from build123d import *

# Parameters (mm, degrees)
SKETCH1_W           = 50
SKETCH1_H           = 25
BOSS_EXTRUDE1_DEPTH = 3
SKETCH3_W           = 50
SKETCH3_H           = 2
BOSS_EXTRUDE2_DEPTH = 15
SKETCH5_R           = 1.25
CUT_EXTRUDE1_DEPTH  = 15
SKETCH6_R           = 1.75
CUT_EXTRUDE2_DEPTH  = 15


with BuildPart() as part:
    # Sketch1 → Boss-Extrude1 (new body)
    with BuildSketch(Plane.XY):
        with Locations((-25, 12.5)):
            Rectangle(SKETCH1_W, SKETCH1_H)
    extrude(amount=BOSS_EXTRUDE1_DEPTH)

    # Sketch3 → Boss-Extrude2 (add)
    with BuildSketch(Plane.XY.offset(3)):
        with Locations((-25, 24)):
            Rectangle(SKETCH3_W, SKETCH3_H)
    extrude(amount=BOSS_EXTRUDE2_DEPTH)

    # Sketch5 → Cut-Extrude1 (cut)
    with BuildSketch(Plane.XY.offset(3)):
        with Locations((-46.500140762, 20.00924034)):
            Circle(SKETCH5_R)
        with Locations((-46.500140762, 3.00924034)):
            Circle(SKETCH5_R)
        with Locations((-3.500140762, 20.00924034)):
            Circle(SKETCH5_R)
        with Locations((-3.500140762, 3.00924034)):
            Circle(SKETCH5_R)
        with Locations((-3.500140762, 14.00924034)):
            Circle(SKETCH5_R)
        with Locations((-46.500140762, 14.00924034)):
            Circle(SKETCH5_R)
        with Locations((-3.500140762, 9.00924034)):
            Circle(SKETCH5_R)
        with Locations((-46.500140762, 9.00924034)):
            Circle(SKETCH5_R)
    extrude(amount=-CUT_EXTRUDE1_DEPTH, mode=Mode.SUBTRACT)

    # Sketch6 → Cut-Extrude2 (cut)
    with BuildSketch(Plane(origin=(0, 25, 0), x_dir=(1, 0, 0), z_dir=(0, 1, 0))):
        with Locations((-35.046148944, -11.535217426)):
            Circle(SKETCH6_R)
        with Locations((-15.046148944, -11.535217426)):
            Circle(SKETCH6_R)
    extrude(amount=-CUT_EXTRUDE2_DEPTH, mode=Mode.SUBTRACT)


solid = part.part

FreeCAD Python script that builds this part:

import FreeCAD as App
import Part
import Sketcher


def add_polygon(sketch, points):
    """Adds a closed chain of lines whose ends are joined by coincident constraints."""
    first, n = sketch.GeometryCount, len(points)
    for a, b in zip(points, points[1:] + points[:1]):
        sketch.addGeometry(Part.LineSegment(App.Vector(*a, 0), App.Vector(*b, 0)), False)
    for i in range(n):
        sketch.addConstraint(Sketcher.Constraint("Coincident", first + i, 2, first + (i + 1) % n, 1))

doc = App.newDocument("Part")
body = doc.addObject("PartDesign::Body", "Body")

# Sketch on XY plane
sketch1 = doc.addObject("Sketcher::SketchObject", "Sketch")
body.addObject(sketch1)
sketch1.AttachmentSupport = (doc.XY_Plane, [""])
sketch1.MapMode = "FlatFace"
add_polygon(sketch1, [(-50, 25), (-50, 0), (0, 0), (0, 25)])  # lines 0-3
sketch1.addConstraint([
    Sketcher.Constraint("Vertical", 0),
    Sketcher.Constraint("Horizontal", 1),
    Sketcher.Constraint("Vertical", 2),
    Sketcher.Constraint("Horizontal", 3),
    Sketcher.Constraint("Coincident", 1, 2, -1, 1),
    Sketcher.Constraint("DistanceX", 1, 1, 1, 2, 50.0),
    Sketcher.Constraint("DistanceY", 0, 2, 0, 1, 25.0),
])
pad1 = doc.addObject("PartDesign::Pad", "Pad")
body.addObject(pad1)
pad1.Profile = sketch1
pad1.Length = 3

# Sketch on XY plane
sketch2 = doc.addObject("Sketcher::SketchObject", "Sketch001")
body.addObject(sketch2)
sketch2.AttachmentSupport = (doc.XY_Plane, [""])
sketch2.MapMode = "FlatFace"
sketch2.AttachmentOffset = App.Placement(App.Vector(0, 0, 3), App.Rotation())
add_polygon(sketch2, [(-50, 25), (-50, 23), (0, 23), (0, 25)])  # lines 0-3
sketch2.addConstraint([
    Sketcher.Constraint("Vertical", 0),
    Sketcher.Constraint("Horizontal", 1),
    Sketcher.Constraint("Vertical", 2),
    Sketcher.Constraint("Horizontal", 3),
    Sketcher.Constraint("PointOnObject", 1, 2, -2),
    Sketcher.Constraint("DistanceX", 1, 1, 1, 2, 50.0),
    Sketcher.Constraint("DistanceY", 0, 2, 0, 1, 2.0),
    Sketcher.Constraint("DistanceY", -1, 1, 0, 2, 23.0),
])
pad2 = doc.addObject("PartDesign::Pad", "Pad001")
body.addObject(pad2)
pad2.Profile = sketch2
pad2.Length = 15

# Sketch on XY plane
sketch3 = doc.addObject("Sketcher::SketchObject", "Sketch002")
body.addObject(sketch3)
sketch3.AttachmentSupport = (doc.XY_Plane, [""])
sketch3.MapMode = "FlatFace"
sketch3.AttachmentOffset = App.Placement(App.Vector(0, 0, 3), App.Rotation())
sketch3.addGeometry([
    Part.Circle(App.Vector(-46.5, 20, 0), App.Vector(0, 0, 1), 1.2),  # 0
    Part.Circle(App.Vector(-46.5, 3, 0), App.Vector(0, 0, 1), 1.2),  # 1
    Part.Circle(App.Vector(-3.5, 20, 0), App.Vector(0, 0, 1), 1.2),  # 2
    Part.Circle(App.Vector(-3.5, 3, 0), App.Vector(0, 0, 1), 1.2),  # 3
    Part.Circle(App.Vector(-3.5, 14, 0), App.Vector(0, 0, 1), 1.2),  # 4
    Part.Circle(App.Vector(-46.5, 14, 0), App.Vector(0, 0, 1), 1.2),  # 5
    Part.Circle(App.Vector(-3.5, 9, 0), App.Vector(0, 0, 1), 1.2),  # 6
    Part.Circle(App.Vector(-46.5, 9, 0), App.Vector(0, 0, 1), 1.2),  # 7
], False)
sketch3.addConstraint([
    Sketcher.Constraint("Equal", 0, 1),
    Sketcher.Constraint("Equal", 1, 2),
    Sketcher.Constraint("Equal", 2, 3),
    Sketcher.Constraint("Equal", 3, 4),
    Sketcher.Constraint("Equal", 4, 5),
    Sketcher.Constraint("Equal", 5, 6),
    Sketcher.Constraint("Equal", 6, 7),
    Sketcher.Constraint("Horizontal", 0, 3, 2, 3),
    Sketcher.Constraint("Horizontal", 1, 3, 3, 3),
    Sketcher.Constraint("Horizontal", 4, 3, 5, 3),
    Sketcher.Constraint("Horizontal", 6, 3, 7, 3),
    Sketcher.Constraint("Vertical", 0, 3, 1, 3),
    Sketcher.Constraint("Vertical", 2, 3, 3, 3),
    Sketcher.Constraint("Vertical", 3, 3, 4, 3),
    Sketcher.Constraint("Vertical", 1, 3, 5, 3),
    Sketcher.Constraint("Vertical", 4, 3, 6, 3),
    Sketcher.Constraint("Vertical", 5, 3, 7, 3),
    Sketcher.Constraint("Diameter", 0, 2.5),
    Sketcher.Constraint("DistanceY", 1, 3, 0, 3, 17.0),
    Sketcher.Constraint("DistanceX", 0, 3, 2, 3, 43.0),
    Sketcher.Constraint("DistanceY", 4, 3, 2, 3, 6.0),
    Sketcher.Constraint("DistanceY", 6, 3, 4, 3, 5.0),
    Sketcher.Constraint("DistanceX", 0, 3, -1, 1, 46.500141),
    Sketcher.Constraint("DistanceY", -1, 1, 0, 3, 20.00924),
])
pocket1 = doc.addObject("PartDesign::Pocket", "Pocket")
body.addObject(pocket1)
pocket1.Profile = sketch3
pocket1.Length = 15

# Sketch on XZ plane
sketch4 = doc.addObject("Sketcher::SketchObject", "Sketch003")
body.addObject(sketch4)
sketch4.AttachmentSupport = (doc.XZ_Plane, [""])
sketch4.MapMode = "FlatFace"
sketch4.AttachmentOffset = App.Placement(App.Vector(0, 0, -25), App.Rotation())
sketch4.addGeometry([
    Part.Circle(App.Vector(-35, 11.5, 0), App.Vector(0, 0, 1), 1.8),
    Part.Circle(App.Vector(-15, 11.5, 0), App.Vector(0, 0, 1), 1.8),
], False)
sketch4.addConstraint([
    Sketcher.Constraint("Equal", 0, 1),
    Sketcher.Constraint("Horizontal", 0, 3, 1, 3),
    Sketcher.Constraint("Diameter", 0, 3.5),
    Sketcher.Constraint("DistanceX", 0, 3, 1, 3, 20.0),
    Sketcher.Constraint("DistanceX", 0, 3, -1, 1, 35.046149),
    Sketcher.Constraint("DistanceY", -1, 1, 0, 3, 11.535217),
])
pocket2 = doc.addObject("PartDesign::Pocket", "Pocket001")
body.addObject(pocket2)
pocket2.Profile = sketch4
pocket2.Length = 15
pocket2.Reversed = True

doc.recompute()
